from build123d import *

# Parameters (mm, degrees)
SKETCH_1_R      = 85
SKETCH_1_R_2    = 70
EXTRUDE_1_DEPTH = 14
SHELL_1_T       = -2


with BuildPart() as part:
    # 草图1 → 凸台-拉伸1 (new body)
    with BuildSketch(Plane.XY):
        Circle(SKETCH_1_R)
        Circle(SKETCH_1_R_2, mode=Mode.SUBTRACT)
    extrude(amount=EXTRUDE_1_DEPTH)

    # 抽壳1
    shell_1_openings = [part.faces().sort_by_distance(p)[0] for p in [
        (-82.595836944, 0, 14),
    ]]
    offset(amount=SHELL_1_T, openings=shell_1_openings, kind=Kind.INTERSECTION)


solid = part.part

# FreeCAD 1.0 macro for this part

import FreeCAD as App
import Part
import Sketcher
from FreeCAD import Vector
Q = App.Units.Quantity


def faces_at(feature, points):
    """Names of the faces that lie closest to the given points."""
    faces = feature.Shape.Faces
    near = lambda p: min(range(len(faces)), key=lambda i: faces[i].distToShape(Part.Vertex(*p))[0])
    return sorted({f"Face{near(p) + 1}" for p in points})

doc = App.newDocument("Part")
body = doc.addObject("PartDesign::Body", "Body")

sketch1 = body.newObject("Sketcher::SketchObject", "Sketch")
sketch1.AttachmentSupport = (doc.getObject("XY_Plane"), [""])
sketch1.MapMode = "FlatFace"
sketch1.addGeometry([
    Part.Circle(Vector(0, 0, 0), Vector(0, 0, 1), 85),
    Part.Circle(Vector(0, 0, 0), Vector(0, 0, 1), 70),
], False)
sketch1.addConstraint([
    Sketcher.Constraint("Coincident", 0, 3, -1, 1),
    Sketcher.Constraint("Coincident", 1, 3, -1, 1),
    Sketcher.Constraint("Diameter", 0, Q("170 mm")),
    Sketcher.Constraint("Diameter", 1, Q("140 mm")),
])
pad1 = body.newObject("PartDesign::Pad", "Pad")
pad1.Profile = sketch1
pad1.Length = 14
doc.recompute()

thickness = body.newObject("PartDesign::Thickness", "Thickness")
thickness.Base = (pad1, faces_at(pad1, [(-79.9, 0, 14)]))
thickness.Value = 2
thickness.Reversed = True
thickness.Join = "Intersection"

doc.recompute()
